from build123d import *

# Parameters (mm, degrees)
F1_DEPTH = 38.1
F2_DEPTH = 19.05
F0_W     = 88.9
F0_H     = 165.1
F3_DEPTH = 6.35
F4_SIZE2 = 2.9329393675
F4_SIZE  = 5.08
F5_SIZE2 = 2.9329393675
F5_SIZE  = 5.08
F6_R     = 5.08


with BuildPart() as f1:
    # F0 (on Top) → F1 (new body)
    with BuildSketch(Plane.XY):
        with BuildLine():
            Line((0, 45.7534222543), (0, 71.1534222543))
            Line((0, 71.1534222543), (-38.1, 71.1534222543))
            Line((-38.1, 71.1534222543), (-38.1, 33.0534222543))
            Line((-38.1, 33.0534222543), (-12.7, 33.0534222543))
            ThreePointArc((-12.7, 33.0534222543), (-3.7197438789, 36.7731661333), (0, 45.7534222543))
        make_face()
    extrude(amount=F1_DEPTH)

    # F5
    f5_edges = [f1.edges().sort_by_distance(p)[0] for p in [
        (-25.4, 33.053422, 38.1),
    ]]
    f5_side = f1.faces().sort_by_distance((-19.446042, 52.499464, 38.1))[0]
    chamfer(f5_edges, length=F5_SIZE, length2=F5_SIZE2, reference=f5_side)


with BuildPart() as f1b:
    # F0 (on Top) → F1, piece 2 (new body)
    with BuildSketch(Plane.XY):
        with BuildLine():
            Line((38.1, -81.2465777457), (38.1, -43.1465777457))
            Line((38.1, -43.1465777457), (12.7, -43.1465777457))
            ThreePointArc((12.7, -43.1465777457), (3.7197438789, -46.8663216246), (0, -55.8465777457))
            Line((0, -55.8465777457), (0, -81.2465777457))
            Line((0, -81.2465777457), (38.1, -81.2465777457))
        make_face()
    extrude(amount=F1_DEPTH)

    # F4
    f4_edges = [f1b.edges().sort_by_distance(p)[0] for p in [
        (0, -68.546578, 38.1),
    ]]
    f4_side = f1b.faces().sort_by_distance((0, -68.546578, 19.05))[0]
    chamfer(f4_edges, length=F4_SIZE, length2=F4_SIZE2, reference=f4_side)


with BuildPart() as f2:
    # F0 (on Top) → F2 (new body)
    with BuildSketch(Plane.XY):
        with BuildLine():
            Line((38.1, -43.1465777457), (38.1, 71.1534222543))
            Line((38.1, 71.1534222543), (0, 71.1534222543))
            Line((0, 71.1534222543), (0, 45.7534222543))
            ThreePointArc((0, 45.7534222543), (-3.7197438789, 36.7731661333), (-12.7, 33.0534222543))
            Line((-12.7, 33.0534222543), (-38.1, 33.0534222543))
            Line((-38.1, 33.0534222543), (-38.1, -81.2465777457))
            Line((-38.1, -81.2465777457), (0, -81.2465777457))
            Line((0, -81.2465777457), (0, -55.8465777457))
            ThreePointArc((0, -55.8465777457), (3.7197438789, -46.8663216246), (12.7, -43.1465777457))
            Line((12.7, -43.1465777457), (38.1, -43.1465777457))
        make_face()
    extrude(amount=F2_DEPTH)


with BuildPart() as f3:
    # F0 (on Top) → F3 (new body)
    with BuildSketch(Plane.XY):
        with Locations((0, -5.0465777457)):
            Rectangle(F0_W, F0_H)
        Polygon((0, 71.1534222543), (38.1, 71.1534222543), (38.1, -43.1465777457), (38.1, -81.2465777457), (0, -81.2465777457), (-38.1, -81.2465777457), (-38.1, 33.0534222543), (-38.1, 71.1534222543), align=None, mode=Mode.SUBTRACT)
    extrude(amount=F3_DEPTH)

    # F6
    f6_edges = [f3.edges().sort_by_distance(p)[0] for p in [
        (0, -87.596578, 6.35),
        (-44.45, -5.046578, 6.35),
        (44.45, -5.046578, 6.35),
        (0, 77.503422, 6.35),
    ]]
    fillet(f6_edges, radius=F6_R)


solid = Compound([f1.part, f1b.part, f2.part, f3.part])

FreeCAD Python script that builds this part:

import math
import FreeCAD as App
import Part
import Sketcher
from FreeCAD import Vector
Q = App.Units.Quantity


def edges_at(feature, points):
    """Names of the edges that pass closest to the given points."""
    edges = feature.Shape.Edges
    near = lambda p: min(range(len(edges)), key=lambda i: edges[i].distToShape(Part.Vertex(*p))[0])
    return sorted({f"Edge{near(p) + 1}" for p in points})

doc = App.newDocument("Part")
body = doc.addObject("PartDesign::Body", "Body")

sketch1 = body.newObject("Sketcher::SketchObject", "Sketch")
sketch1.AttachmentSupport = (doc.getObject("XY_Plane"), [""])
sketch1.MapMode = "FlatFace"
sketch1.addGeometry(Part.LineSegment(Vector(0, 46, 0), Vector(0, 71, 0)), False)
sketch1.addGeometry(Part.LineSegment(Vector(0, 71, 0), Vector(-38, 71, 0)), False)
sketch1.addGeometry(Part.LineSegment(Vector(-38, 71, 0), Vector(-38, 33, 0)), False)
sketch1.addGeometry(Part.LineSegment(Vector(-38, 33, 0), Vector(-13, 33, 0)), False)
sketch1.addGeometry(Part.ArcOfCircle(Part.Circle(Vector(-13, 46, 0), Vector(0, 0, 1), 13), math.radians(-90), math.radians(0)), False)
sketch1.addConstraint(Sketcher.Constraint("Coincident", 0, 2, 1, 1))
sketch1.addConstraint(Sketcher.Constraint("Coincident", 1, 2, 2, 1))
sketch1.addConstraint(Sketcher.Constraint("Coincident", 2, 2, 3, 1))
sketch1.addConstraint(Sketcher.Constraint("Tangent", 3, 2, 4, 1))
sketch1.addConstraint(Sketcher.Constraint("Tangent", 4, 2, 0, 1))
sketch1.addConstraint(Sketcher.Constraint("Vertical", 0))
sketch1.addConstraint(Sketcher.Constraint("Horizontal", 1))
sketch1.addConstraint(Sketcher.Constraint("Vertical", 2))
sketch1.addConstraint(Sketcher.Constraint("Horizontal", 3))
sketch1.addConstraint(Sketcher.Constraint("PointOnObject", 0, 2, -2))
sketch1.addConstraint(Sketcher.Constraint("Equal", 3, 0))
sketch1.addConstraint(Sketcher.Constraint("Radius", 4, Q("0.5 in")))
sketch1.addConstraint(Sketcher.Constraint("DistanceX", 3, 1, 3, 2, Q("1 in")))
sketch1.addConstraint(Sketcher.Constraint("DistanceY", -1, 1, 4, 3, 45.753422))
pad1 = body.newObject("PartDesign::Pad", "Pad")
pad1.Profile = sketch1
pad1.Length = Q("1.5 in")
doc.recompute()

chamfer = body.newObject("PartDesign::Chamfer", "Chamfer")
chamfer.Base = (pad1, edges_at(pad1, [(-25.4, 33.053, 38.1)]))
chamfer.ChamferType = "Two distances"
chamfer.Size = Q("0.2 in")
chamfer.Size2 = 2.932939
chamfer.FlipDirection = True
body2 = doc.addObject("PartDesign::Body", "Body001")

sketch2 = body2.newObject("Sketcher::SketchObject", "Sketch001")
sketch2.AttachmentSupport = (doc.getObject("XY_Plane001"), [""])
sketch2.MapMode = "FlatFace"
sketch2.addGeometry(Part.LineSegment(Vector(38, -81, 0), Vector(38, -43, 0)), False)
sketch2.addGeometry(Part.LineSegment(Vector(38, -43, 0), Vector(13, -43, 0)), False)
sketch2.addGeometry(Part.ArcOfCircle(Part.Circle(Vector(13, -56, 0), Vector(0, 0, 1), 13), math.radians(90), math.radians(180)), False)
sketch2.addGeometry(Part.LineSegment(Vector(0, -56, 0), Vector(0, -81, 0)), False)
sketch2.addGeometry(Part.LineSegment(Vector(0, -81, 0), Vector(38, -81, 0)), False)
sketch2.addConstraint(Sketcher.Constraint("Coincident", 0, 2, 1, 1))
sketch2.addConstraint(Sketcher.Constraint("Tangent", 1, 2, 2, 1))
sketch2.addConstraint(Sketcher.Constraint("Tangent", 2, 2, 3, 1))
sketch2.addConstraint(Sketcher.Constraint("Coincident", 3, 2, 4, 1))
sketch2.addConstraint(Sketcher.Constraint("Coincident", 4, 2, 0, 1))
sketch2.addConstraint(Sketcher.Constraint("Vertical", 0))
sketch2.addConstraint(Sketcher.Constraint("Horizontal", 1))
sketch2.addConstraint(Sketcher.Constraint("Vertical", 3))
sketch2.addConstraint(Sketcher.Constraint("Horizontal", 4))
sketch2.addConstraint(Sketcher.Constraint("PointOnObject", 2, 2, -2))
sketch2.addConstraint(Sketcher.Constraint("Equal", 4, 0))
sketch2.addConstraint(Sketcher.Constraint("Radius", 2, Q("0.5 in")))
sketch2.addConstraint(Sketcher.Constraint("DistanceX", 1, 2, 1, 1, Q("1 in")))
sketch2.addConstraint(Sketcher.Constraint("DistanceY", 2, 3, -1, 1, 55.846578))
pad2 = body2.newObject("PartDesign::Pad", "Pad001")
pad2.Profile = sketch2
pad2.Length = Q("1.5 in")
doc.recompute()

chamfer2 = body2.newObject("PartDesign::Chamfer", "Chamfer001")
chamfer2.Base = (pad2, edges_at(pad2, [(0, -68.547, 38.1)]))
chamfer2.ChamferType = "Two distances"
chamfer2.Size = Q("0.2 in")
chamfer2.Size2 = 2.932939
body3 = doc.addObject("PartDesign::Body", "Body002")

sketch3 = body3.newObject("Sketcher::SketchObject", "Sketch002")
sketch3.AttachmentSupport = (doc.getObject("XY_Plane002"), [""])
sketch3.MapMode = "FlatFace"
sketch3.addGeometry(Part.LineSegment(Vector(38, -43, 0), Vector(38, 71, 0)), False)
sketch3.addGeometry(Part.LineSegment(Vector(38, 71, 0), Vector(0, 71, 0)), False)
sketch3.addGeometry(Part.LineSegment(Vector(0, 71, 0), Vector(0, 46, 0)), False)
sketch3.addGeometry(Part.ArcOfCircle(Part.Circle(Vector(-13, 46, 0), Vector(0, 0, 1), 13), math.radians(-90), math.radians(0)), False)
sketch3.addGeometry(Part.LineSegment(Vector(-13, 33, 0), Vector(-38, 33, 0)), False)
sketch3.addGeometry(Part.LineSegment(Vector(-38, 33, 0), Vector(-38, -81, 0)), False)
sketch3.addGeometry(Part.LineSegment(Vector(-38, -81, 0), Vector(0, -81, 0)), False)
sketch3.addGeometry(Part.LineSegment(Vector(0, -81, 0), Vector(0, -56, 0)), False)
sketch3.addGeometry(Part.ArcOfCircle(Part.Circle(Vector(13, -56, 0), Vector(0, 0, 1), 13), math.radians(90), math.radians(180)), False)
sketch3.addGeometry(Part.LineSegment(Vector(13, -43, 0), Vector(38, -43, 0)), False)
sketch3.addConstraint(Sketcher.Constraint("Coincident", 0, 2, 1, 1))
sketch3.addConstraint(Sketcher.Constraint("Coincident", 1, 2, 2, 1))
sketch3.addConstraint(Sketcher.Constraint("Tangent", 2, 2, 3, 2))
sketch3.addConstraint(Sketcher.Constraint("Tangent", 3, 1, 4, 1))
sketch3.addConstraint(Sketcher.Constraint("Coincident", 4, 2, 5, 1))
sketch3.addConstraint(Sketcher.Constraint("Coincident", 5, 2, 6, 1))
sketch3.addConstraint(Sketcher.Constraint("Coincident", 6, 2, 7, 1))
sketch3.addConstraint(Sketcher.Constraint("Tangent", 7, 2, 8, 2))
sketch3.addConstraint(Sketcher.Constraint("Tangent", 8, 1, 9, 1))
sketch3.addConstraint(Sketcher.Constraint("Coincident", 9, 2, 0, 1))
sketch3.addConstraint(Sketcher.Constraint("Vertical", 0))
sketch3.addConstraint(Sketcher.Constraint("Horizontal", 1))
sketch3.addConstraint(Sketcher.Constraint("Vertical", 2))
sketch3.addConstraint(Sketcher.Constraint("Horizontal", 4))
sketch3.addConstraint(Sketcher.Constraint("Vertical", 5))
sketch3.addConstraint(Sketcher.Constraint("Horizontal", 6))
sketch3.addConstraint(Sketcher.Constraint("Vertical", 7))
sketch3.addConstraint(Sketcher.Constraint("Horizontal", 9))
sketch3.addConstraint(Sketcher.Constraint("Equal", 3, 8))
sketch3.addConstraint(Sketcher.Constraint("PointOnObject", 1, 2, -2))
sketch3.addConstraint(Sketcher.Constraint("PointOnObject", 6, 2, -2))
sketch3.addConstraint(Sketcher.Constraint("Equal", 1, 6))
sketch3.addConstraint(Sketcher.Constraint("Equal", 9, 2))
sketch3.addConstraint(Sketcher.Constraint("Equal", 0, 5))
sketch3.addConstraint(Sketcher.Constraint("Radius", 3, Q("0.5 in")))
sketch3.addConstraint(Sketcher.Constraint("DistanceX", 4, 2, 4, 1, Q("1 in")))
sketch3.addConstraint(Sketcher.Constraint("DistanceY", 0, 1, 0, 2, Q("4.5 in")))
sketch3.addConstraint(Sketcher.Constraint("DistanceY", -1, 1, 3, 3, 45.753422))
pad3 = body3.newObject("PartDesign::Pad", "Pad002")
pad3.Profile = sketch3
pad3.Length = Q("0.75 in")
body4 = doc.addObject("PartDesign::Body", "Body003")

sketch4 = body4.newObject("Sketcher::SketchObject", "Sketch003")
sketch4.AttachmentSupport = (doc.getObject("XY_Plane003"), [""])
sketch4.MapMode = "FlatFace"
sketch4.addGeometry(Part.LineSegment(Vector(-44, 78, 0), Vector(-44, -88, 0)), False)
sketch4.addGeometry(Part.LineSegment(Vector(-44, -88, 0), Vector(44, -88, 0)), False)
sketch4.addGeometry(Part.LineSegment(Vector(44, -88, 0), Vector(44, 78, 0)), False)
sketch4.addGeometry(Part.LineSegment(Vector(44, 78, 0), Vector(-44, 78, 0)), False)
sketch4.addGeometry(Part.LineSegment(Vector(-38, 71, 0), Vector(38, 71, 0)), False)
sketch4.addGeometry(Part.LineSegment(Vector(38, 71, 0), Vector(38, -81, 0)), False)
sketch4.addGeometry(Part.LineSegment(Vector(38, -81, 0), Vector(-38, -81, 0)), False)
sketch4.addGeometry(Part.LineSegment(Vector(-38, -81, 0), Vector(-38, 71, 0)), False)
sketch4.addConstraint(Sketcher.Constraint("Coincident", 0, 2, 1, 1))
sketch4.addConstraint(Sketcher.Constraint("Coincident", 1, 2, 2, 1))
sketch4.addConstraint(Sketcher.Constraint("Coincident", 2, 2, 3, 1))
sketch4.addConstraint(Sketcher.Constraint("Coincident", 3, 2, 0, 1))
sketch4.addConstraint(Sketcher.Constraint("Coincident", 4, 2, 5, 1))
sketch4.addConstraint(Sketcher.Constraint("Coincident", 5, 2, 6, 1))
sketch4.addConstraint(Sketcher.Constraint("Coincident", 6, 2, 7, 1))
sketch4.addConstraint(Sketcher.Constraint("Coincident", 7, 2, 4, 1))
sketch4.addConstraint(Sketcher.Constraint("Vertical", 0))
sketch4.addConstraint(Sketcher.Constraint("Horizontal", 1))
sketch4.addConstraint(Sketcher.Constraint("Vertical", 2))
sketch4.addConstraint(Sketcher.Constraint("Horizontal", 3))
sketch4.addConstraint(Sketcher.Constraint("Horizontal", 4))
sketch4.addConstraint(Sketcher.Constraint("Vertical", 5))
sketch4.addConstraint(Sketcher.Constraint("Horizontal", 6))
sketch4.addConstraint(Sketcher.Constraint("Vertical", 7))
sketch4.addConstraint(Sketcher.Constraint("DistanceX", 4, 1, 4, 2, Q("3 in")))
sketch4.addConstraint(Sketcher.Constraint("DistanceY", 5, 2, 5, 1, Q("6 in")))
sketch4.addConstraint(Sketcher.Constraint("DistanceX", 1, 1, 1, 2, Q("3.5 in")))
sketch4.addConstraint(Sketcher.Constraint("DistanceY", 0, 2, 0, 1, Q("6.5 in")))
sketch4.addConstraint(Sketcher.Constraint("DistanceX", -1, 1, 4, 2, Q("1.5 in")))
sketch4.addConstraint(Sketcher.Constraint("DistanceX", 0, 2, -1, 1, Q("1.75 in")))
sketch4.addConstraint(Sketcher.Constraint("DistanceY", 4, 2, 2, 2, Q("0.25 in")))
sketch4.addConstraint(Sketcher.Constraint("DistanceY", 0, 2, -1, 1, 87.596578))
pad4 = body4.newObject("PartDesign::Pad", "Pad003")
pad4.Profile = sketch4
pad4.Length = Q("0.25 in")
doc.recompute()

fillet = body4.newObject("PartDesign::Fillet", "Fillet")
fillet.Base = (pad4, edges_at(pad4, [
    (0, -87.597, 6.35),
    (-44.45, -5.047, 6.35),
    (44.45, -5.047, 6.35),
    (0, 77.503, 6.35),
]))
fillet.Radius = Q("0.2 in")

doc.recompute()
